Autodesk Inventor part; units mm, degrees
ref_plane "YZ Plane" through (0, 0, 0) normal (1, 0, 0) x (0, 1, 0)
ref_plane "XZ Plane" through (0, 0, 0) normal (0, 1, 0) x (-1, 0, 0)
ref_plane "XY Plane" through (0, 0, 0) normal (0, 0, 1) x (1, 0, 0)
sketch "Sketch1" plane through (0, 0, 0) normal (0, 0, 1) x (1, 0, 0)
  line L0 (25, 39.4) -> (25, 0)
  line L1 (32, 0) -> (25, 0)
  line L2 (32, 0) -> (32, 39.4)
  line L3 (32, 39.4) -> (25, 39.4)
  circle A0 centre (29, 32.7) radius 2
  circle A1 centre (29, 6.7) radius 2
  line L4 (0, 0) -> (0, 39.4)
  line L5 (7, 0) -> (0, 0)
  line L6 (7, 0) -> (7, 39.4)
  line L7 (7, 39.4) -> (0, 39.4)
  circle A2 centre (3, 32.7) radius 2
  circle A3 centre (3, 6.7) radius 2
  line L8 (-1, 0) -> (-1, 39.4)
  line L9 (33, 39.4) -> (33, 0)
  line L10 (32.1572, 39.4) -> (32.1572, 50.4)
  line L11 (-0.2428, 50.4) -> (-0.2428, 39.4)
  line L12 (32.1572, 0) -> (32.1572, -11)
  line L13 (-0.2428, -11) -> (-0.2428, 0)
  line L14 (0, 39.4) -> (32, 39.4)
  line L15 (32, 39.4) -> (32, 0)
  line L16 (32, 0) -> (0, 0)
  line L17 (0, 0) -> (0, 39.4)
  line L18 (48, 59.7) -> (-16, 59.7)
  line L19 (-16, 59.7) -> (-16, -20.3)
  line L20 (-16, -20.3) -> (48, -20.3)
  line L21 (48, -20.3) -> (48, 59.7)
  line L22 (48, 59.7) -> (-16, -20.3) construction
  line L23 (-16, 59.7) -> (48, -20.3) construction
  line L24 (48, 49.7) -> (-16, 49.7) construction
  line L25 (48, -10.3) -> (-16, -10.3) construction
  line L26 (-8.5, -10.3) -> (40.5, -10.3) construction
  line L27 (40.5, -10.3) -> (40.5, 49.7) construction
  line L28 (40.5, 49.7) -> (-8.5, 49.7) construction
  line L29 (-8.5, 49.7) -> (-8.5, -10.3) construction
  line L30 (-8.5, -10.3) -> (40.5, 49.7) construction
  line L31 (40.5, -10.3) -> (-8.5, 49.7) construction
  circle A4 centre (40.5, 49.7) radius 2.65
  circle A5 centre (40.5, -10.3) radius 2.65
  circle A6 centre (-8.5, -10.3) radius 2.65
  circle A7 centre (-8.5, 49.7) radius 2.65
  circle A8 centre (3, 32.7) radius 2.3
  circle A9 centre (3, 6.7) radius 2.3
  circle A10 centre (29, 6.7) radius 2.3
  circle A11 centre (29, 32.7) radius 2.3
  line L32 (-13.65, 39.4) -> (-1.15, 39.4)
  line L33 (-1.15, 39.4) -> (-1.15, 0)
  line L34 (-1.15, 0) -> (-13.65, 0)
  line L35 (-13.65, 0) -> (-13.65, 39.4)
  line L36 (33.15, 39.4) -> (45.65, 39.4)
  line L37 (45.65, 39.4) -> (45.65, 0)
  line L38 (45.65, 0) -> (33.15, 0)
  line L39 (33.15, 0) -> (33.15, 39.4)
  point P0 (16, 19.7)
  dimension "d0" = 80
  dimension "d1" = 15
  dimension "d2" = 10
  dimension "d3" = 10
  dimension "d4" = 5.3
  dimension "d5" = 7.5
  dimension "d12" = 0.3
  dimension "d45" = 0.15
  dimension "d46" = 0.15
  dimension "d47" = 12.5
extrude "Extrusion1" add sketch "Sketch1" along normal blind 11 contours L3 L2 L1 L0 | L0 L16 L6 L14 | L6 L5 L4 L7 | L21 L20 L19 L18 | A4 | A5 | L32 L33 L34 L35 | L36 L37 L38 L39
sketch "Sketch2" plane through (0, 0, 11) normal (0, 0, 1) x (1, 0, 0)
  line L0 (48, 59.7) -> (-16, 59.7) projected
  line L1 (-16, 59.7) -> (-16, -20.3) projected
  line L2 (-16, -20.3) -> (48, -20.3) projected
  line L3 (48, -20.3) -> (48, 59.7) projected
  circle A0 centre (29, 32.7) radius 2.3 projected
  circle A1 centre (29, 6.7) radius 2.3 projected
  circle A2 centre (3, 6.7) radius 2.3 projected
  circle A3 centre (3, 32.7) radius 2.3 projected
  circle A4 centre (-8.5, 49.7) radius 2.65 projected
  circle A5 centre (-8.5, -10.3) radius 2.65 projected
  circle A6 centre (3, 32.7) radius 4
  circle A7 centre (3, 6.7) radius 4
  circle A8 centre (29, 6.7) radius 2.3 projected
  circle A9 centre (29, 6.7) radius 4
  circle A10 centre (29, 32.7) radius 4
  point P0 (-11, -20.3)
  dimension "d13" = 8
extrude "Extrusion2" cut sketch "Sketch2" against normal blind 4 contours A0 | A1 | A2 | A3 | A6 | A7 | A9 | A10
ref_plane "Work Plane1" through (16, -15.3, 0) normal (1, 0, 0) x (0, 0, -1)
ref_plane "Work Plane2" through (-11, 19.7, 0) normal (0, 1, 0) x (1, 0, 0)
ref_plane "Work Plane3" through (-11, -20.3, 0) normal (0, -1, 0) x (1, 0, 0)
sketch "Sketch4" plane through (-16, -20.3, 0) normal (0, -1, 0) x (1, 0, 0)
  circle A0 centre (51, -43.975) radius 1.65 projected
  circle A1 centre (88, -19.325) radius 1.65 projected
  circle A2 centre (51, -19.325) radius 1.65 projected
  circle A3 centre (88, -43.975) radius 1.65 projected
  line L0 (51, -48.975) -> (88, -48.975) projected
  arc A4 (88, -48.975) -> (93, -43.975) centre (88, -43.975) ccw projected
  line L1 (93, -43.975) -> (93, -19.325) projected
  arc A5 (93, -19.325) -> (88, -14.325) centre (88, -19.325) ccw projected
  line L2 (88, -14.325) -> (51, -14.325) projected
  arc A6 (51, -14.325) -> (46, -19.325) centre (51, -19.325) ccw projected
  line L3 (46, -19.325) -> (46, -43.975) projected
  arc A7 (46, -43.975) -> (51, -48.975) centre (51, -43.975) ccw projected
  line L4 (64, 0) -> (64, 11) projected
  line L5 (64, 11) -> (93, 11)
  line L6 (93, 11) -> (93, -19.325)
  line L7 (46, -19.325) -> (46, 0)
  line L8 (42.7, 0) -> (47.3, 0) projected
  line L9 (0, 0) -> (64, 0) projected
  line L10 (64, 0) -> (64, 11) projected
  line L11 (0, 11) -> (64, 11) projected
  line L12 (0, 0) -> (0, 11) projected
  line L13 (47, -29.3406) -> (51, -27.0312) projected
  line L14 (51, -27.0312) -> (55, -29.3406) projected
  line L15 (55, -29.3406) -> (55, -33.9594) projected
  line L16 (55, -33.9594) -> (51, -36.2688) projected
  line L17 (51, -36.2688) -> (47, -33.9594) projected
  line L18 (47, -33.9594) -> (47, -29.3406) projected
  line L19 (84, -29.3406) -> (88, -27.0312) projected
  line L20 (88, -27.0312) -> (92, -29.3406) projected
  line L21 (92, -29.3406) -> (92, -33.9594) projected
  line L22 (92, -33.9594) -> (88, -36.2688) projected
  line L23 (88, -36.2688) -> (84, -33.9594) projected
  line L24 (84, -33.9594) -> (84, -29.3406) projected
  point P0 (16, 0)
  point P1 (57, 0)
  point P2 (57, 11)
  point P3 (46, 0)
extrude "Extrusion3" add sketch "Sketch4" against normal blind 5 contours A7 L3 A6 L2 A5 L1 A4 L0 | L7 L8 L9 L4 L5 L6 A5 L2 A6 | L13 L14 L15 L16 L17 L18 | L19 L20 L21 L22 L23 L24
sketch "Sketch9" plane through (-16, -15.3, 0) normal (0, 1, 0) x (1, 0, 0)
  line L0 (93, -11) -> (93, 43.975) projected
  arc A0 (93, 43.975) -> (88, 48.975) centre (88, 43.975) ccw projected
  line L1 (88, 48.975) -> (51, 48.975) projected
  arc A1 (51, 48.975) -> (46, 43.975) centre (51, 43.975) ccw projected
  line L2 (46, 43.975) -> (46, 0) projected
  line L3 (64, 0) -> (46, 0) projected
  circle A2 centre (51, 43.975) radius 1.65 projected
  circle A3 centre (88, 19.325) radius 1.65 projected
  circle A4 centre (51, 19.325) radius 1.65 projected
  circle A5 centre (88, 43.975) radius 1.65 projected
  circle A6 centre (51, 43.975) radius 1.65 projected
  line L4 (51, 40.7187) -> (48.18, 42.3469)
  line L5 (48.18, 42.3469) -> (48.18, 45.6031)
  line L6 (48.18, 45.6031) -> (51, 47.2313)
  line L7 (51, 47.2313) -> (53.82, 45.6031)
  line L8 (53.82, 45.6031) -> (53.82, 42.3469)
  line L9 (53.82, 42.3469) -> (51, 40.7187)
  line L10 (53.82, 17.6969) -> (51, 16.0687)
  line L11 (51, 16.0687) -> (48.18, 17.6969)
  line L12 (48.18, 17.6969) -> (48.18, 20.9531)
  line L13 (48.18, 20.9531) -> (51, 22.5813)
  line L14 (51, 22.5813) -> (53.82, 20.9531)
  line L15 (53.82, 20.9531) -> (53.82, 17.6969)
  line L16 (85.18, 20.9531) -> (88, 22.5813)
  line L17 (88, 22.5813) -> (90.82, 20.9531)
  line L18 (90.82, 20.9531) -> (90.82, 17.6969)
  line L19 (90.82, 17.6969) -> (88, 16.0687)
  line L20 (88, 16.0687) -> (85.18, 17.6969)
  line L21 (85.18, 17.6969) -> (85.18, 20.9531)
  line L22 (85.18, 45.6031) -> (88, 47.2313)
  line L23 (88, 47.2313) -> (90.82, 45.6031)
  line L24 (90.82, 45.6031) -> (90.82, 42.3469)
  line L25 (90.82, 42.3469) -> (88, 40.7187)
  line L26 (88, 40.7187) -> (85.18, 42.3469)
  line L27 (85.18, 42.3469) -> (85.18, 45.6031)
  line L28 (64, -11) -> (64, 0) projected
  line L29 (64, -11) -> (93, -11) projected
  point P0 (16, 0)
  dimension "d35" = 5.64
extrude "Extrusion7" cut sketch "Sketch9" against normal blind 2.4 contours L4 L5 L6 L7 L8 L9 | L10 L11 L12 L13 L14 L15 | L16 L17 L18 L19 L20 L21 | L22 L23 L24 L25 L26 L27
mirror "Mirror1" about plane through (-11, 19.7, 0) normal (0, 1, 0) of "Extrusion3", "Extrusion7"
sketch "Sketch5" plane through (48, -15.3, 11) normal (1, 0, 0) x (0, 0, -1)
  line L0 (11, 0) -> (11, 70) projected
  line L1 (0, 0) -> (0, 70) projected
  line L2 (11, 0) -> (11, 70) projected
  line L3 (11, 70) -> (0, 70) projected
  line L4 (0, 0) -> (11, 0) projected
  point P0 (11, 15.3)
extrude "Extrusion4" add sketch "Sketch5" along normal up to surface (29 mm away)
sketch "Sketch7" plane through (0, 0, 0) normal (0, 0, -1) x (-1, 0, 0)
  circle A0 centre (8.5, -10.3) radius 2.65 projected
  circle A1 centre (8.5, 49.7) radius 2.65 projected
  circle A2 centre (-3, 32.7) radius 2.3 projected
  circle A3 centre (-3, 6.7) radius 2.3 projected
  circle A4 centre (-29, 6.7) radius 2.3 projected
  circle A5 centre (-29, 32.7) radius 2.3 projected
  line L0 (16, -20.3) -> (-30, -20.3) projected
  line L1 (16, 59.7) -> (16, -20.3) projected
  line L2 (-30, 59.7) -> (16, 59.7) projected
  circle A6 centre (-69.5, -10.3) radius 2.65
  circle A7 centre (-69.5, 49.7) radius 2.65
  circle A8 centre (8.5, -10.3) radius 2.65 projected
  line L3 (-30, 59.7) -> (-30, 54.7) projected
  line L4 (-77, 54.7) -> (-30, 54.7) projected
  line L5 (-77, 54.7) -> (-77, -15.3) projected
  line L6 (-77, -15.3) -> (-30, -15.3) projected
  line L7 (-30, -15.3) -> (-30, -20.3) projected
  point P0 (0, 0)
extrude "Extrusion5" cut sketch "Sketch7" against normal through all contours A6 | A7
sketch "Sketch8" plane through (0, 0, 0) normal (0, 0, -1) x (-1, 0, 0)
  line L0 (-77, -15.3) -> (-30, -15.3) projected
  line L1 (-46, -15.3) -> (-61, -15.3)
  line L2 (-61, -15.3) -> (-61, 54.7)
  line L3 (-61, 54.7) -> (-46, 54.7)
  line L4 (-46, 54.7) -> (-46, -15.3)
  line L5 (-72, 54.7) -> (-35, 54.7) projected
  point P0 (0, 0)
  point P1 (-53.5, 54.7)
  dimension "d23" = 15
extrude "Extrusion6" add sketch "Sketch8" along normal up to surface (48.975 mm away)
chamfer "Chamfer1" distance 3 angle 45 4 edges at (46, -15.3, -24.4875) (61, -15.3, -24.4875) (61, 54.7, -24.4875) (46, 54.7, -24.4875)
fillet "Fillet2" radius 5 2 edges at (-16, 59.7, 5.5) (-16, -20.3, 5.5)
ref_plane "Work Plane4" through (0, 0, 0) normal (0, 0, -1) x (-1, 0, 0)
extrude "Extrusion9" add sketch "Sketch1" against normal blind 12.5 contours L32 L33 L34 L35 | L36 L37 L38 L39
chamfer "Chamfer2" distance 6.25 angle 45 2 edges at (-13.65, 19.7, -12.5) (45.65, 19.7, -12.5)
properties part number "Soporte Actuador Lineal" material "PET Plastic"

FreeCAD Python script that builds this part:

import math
import FreeCAD as App
import Part
import Sketcher

V = App.Vector
Q = App.Units.Quantity


def edges_at(feature, points):
    """Names of the edges that pass closest to the given points."""
    edges = feature.Shape.Edges
    near = lambda p: min(range(len(edges)), key=lambda i: edges[i].distToShape(Part.Vertex(*p))[0])
    return sorted({f"Edge{near(p) + 1}" for p in points})


def add_polygon(sketch, points):
    """Adds a closed chain of lines whose ends are joined by coincident constraints."""
    first, n = sketch.GeometryCount, len(points)
    for a, b in zip(points, points[1:] + points[:1]):
        sketch.addGeometry(Part.LineSegment(App.Vector(*a, 0), App.Vector(*b, 0)), False)
    for i in range(n):
        sketch.addConstraint(Sketcher.Constraint("Coincident", first + i, 2, first + (i + 1) % n, 1))

doc = App.newDocument("Part")
body = doc.addObject("PartDesign::Body", "Body")

# Sketch on XY plane
sketch1 = body.newObject("Sketcher::SketchObject", "Sketch")
sketch1.AttachmentSupport = (doc.getObject("XY_Plane"), [""])
sketch1.MapMode = "FlatFace"
add_polygon(sketch1, [(48, -20.3), (48, 59.7), (-16, 59.7), (-16, -20.3)])  # lines 0-3
sketch1.addGeometry(Part.Circle(V(29, 6.7, 0), V(0, 0, 1), 2.3), False)  # 4
sketch1.addGeometry(Part.Circle(V(29, 32.7, 0), V(0, 0, 1), 2.3), False)  # 5
sketch1.addGeometry(Part.Circle(V(-8.5, -10.3, 0), V(0, 0, 1), 2.6), False)  # 6
sketch1.addGeometry(Part.Circle(V(-8.5, 49.7, 0), V(0, 0, 1), 2.6), False)  # 7
sketch1.addGeometry(Part.Circle(V(3, 6.7, 0), V(0, 0, 1), 2.3), False)  # 8
sketch1.addGeometry(Part.Circle(V(3, 32.7, 0), V(0, 0, 1), 2.3), False)  # 9
sketch1.addConstraint([
    Sketcher.Constraint("Vertical", 0),
    Sketcher.Constraint("Horizontal", 1),
    Sketcher.Constraint("Vertical", 2),
    Sketcher.Constraint("Horizontal", 3),
    Sketcher.Constraint("Equal", 4, 5),
    Sketcher.Constraint("Equal", 6, 7),
    Sketcher.Constraint("Equal", 5, 8),
    Sketcher.Constraint("Equal", 8, 9),
    Sketcher.Constraint("Horizontal", 4, 3, 8, 3),
    Sketcher.Constraint("Horizontal", 5, 3, 9, 3),
    Sketcher.Constraint("Vertical", 4, 3, 5, 3),
    Sketcher.Constraint("Vertical", 6, 3, 7, 3),
    Sketcher.Constraint("Vertical", 8, 3, 9, 3),
    Sketcher.Constraint("Diameter", 6, Q("5.3 mm")),
    Sketcher.Constraint("DistanceY", 0, 1, 0, 2, Q("80 mm")),
    Sketcher.Constraint("DistanceY", 7, 3, 0, 2, Q("10 mm")),
    Sketcher.Constraint("DistanceY", 2, 2, 6, 3, Q("10 mm")),
    Sketcher.Constraint("Diameter", 4, Q("4.6 mm")),
    Sketcher.Constraint("DistanceX", 1, 2, 7, 3, Q("7.5 mm")),
    Sketcher.Constraint("DistanceX", 1, 2, 1, 1, Q("64 mm")),
    Sketcher.Constraint("DistanceX", -1, 1, 4, 3, Q("29 mm")),
    Sketcher.Constraint("DistanceX", -1, 1, 8, 3, Q("3 mm")),
    Sketcher.Constraint("DistanceX", -1, 1, 0, 2, Q("48 mm")),
    Sketcher.Constraint("DistanceY", 4, 3, 5, 3, Q("26 mm")),
    Sketcher.Constraint("DistanceY", 6, 3, 4, 3, Q("17 mm")),
    Sketcher.Constraint("DistanceY", -1, 1, 4, 3, Q("6.7 mm")),
])
pad1 = body.newObject("PartDesign::Pad", "Pad")
pad1.Profile = sketch1
pad1.Length = 11

# Sketch on XY plane
sketch2 = body.newObject("Sketcher::SketchObject", "Sketch001")
sketch2.AttachmentSupport = (doc.getObject("XY_Plane"), [""])
sketch2.MapMode = "FlatFace"
sketch2.AttachmentOffset = App.Placement(V(0, 0, 11), App.Rotation())
sketch2.addGeometry([
    Part.Circle(V(29, 32.7, 0), V(0, 0, 1), 4),
    Part.Circle(V(29, 6.7, 0), V(0, 0, 1), 4),
    Part.Circle(V(3, 6.7, 0), V(0, 0, 1), 4),
    Part.Circle(V(3, 32.7, 0), V(0, 0, 1), 4),
], False)
sketch2.addConstraint([
    Sketcher.Constraint("Equal", 0, 1),
    Sketcher.Constraint("Equal", 1, 2),
    Sketcher.Constraint("Equal", 2, 3),
    Sketcher.Constraint("Horizontal", 1, 3, 2, 3),
    Sketcher.Constraint("Horizontal", 0, 3, 3, 3),
    Sketcher.Constraint("Vertical", 0, 3, 1, 3),
    Sketcher.Constraint("Vertical", 2, 3, 3, 3),
    Sketcher.Constraint("Diameter", 0, Q("8 mm")),
    Sketcher.Constraint("DistanceX", -1, 1, 0, 3, Q("29 mm")),
    Sketcher.Constraint("DistanceX", -1, 1, 2, 3, Q("3 mm")),
    Sketcher.Constraint("DistanceY", 1, 3, 0, 3, Q("26 mm")),
    Sketcher.Constraint("DistanceY", -1, 1, 0, 3, Q("32.7 mm")),
])
pocket1 = body.newObject("PartDesign::Pocket", "Pocket")
pocket1.Profile = sketch2
pocket1.Length = 4

# Sketch on XZ plane
sketch3 = body.newObject("Sketcher::SketchObject", "Sketch002")
sketch3.AttachmentSupport = (doc.getObject("XZ_Plane"), [""])
sketch3.MapMode = "FlatFace"
sketch3.AttachmentOffset = App.Placement(V(0, 0, 20.3), App.Rotation())
sketch3.addGeometry([
    Part.ArcOfCircle(Part.Circle(V(35, -44, 0), V(0, 0, 1), 5), math.radians(180), math.radians(270)),  # 0
    Part.LineSegment(V(35, -49, 0), V(72, -49, 0)),  # 1
    Part.ArcOfCircle(Part.Circle(V(72, -44, 0), V(0, 0, 1), 5), math.radians(-90), math.radians(0)),  # 2
    Part.LineSegment(V(77, -44, 0), V(77, 11, 0)),  # 3
    Part.LineSegment(V(77, 11, 0), V(48, 11, 0)),  # 4
    Part.LineSegment(V(48, 11, 0), V(48, 0, 0)),  # 5
    Part.LineSegment(V(48, 0, 0), V(30, 0, 0)),  # 6
    Part.LineSegment(V(30, 0, 0), V(30, -44, 0)),  # 7
    Part.Circle(V(35, -44, 0), V(0, 0, 1), 1.6),  # 8
    Part.Circle(V(72, -44, 0), V(0, 0, 1), 1.6),  # 9
    Part.Circle(V(35, -19.3, 0), V(0, 0, 1), 1.6),  # 10
    Part.Circle(V(72, -19.3, 0), V(0, 0, 1), 1.6),  # 11
], False)
sketch3.addConstraint([
    Sketcher.Constraint("Tangent", 0, 2, 1, 1),
    Sketcher.Constraint("Tangent", 1, 2, 2, 1),
    Sketcher.Constraint("Tangent", 2, 2, 3, 1),
    Sketcher.Constraint("Coincident", 3, 2, 4, 1),
    Sketcher.Constraint("Coincident", 4, 2, 5, 1),
    Sketcher.Constraint("Coincident", 5, 2, 6, 1),
    Sketcher.Constraint("Coincident", 6, 2, 7, 1),
    Sketcher.Constraint("Tangent", 7, 2, 0, 1),
    Sketcher.Constraint("Horizontal", 1),
    Sketcher.Constraint("Vertical", 3),
    Sketcher.Constraint("Horizontal", 4),
    Sketcher.Constraint("Vertical", 5),
    Sketcher.Constraint("Horizontal", 6),
    Sketcher.Constraint("Vertical", 7),
    Sketcher.Constraint("Coincident", 8, 3, 0, 3),
    Sketcher.Constraint("Coincident", 9, 3, 2, 3),
    Sketcher.Constraint("Equal", 0, 2),
    Sketcher.Constraint("Equal", 8, 9),
    Sketcher.Constraint("Equal", 9, 10),
    Sketcher.Constraint("Equal", 10, 11),
    Sketcher.Constraint("PointOnObject", 5, 2, -1),
    Sketcher.Constraint("Horizontal", 10, 3, 11, 3),
    Sketcher.Constraint("Vertical", 8, 3, 10, 3),
    Sketcher.Constraint("Vertical", 9, 3, 11, 3),
    Sketcher.Constraint("Radius", 0, Q("5 mm")),
    Sketcher.Constraint("Diameter", 8, Q("3.3 mm")),
    Sketcher.Constraint("DistanceX", 1, 1, 1, 2, Q("37 mm")),
    Sketcher.Constraint("DistanceX", 4, 2, 4, 1, Q("29 mm")),
    Sketcher.Constraint("DistanceY", 5, 2, 5, 1, Q("11 mm")),
    Sketcher.Constraint("DistanceX", -1, 1, 0, 3, Q("35 mm")),
    Sketcher.Constraint("DistanceY", 3, 1, 3, 2, Q("54.975 mm")),
    Sketcher.Constraint("DistanceY", 0, 3, 10, 3, Q("24.65 mm")),
])
pad2 = body.newObject("PartDesign::Pad", "Pad001")
pad2.Profile = sketch3
pad2.Length = 5
pad2.Reversed = True

# Sketch on XZ plane
sketch4 = body.newObject("Sketcher::SketchObject", "Sketch003")
sketch4.AttachmentSupport = (doc.getObject("XZ_Plane"), [""])
sketch4.MapMode = "FlatFace"
sketch4.AttachmentOffset = App.Placement(V(0, 0, 15.3), App.Rotation())
add_polygon(sketch4, [(32.2, -42.3), (35, -40.7), (37.8, -42.3), (37.8, -45.6), (35, -47.2), (32.2, -45.6)])  # lines 0-5
sketch4.addGeometry(Part.Circle(V(35, -44, 0), V(0, 0, 1), 1.6), False)  # 6
add_polygon(sketch4, [(35, -16.1), (37.8, -17.7), (37.8, -21), (35, -22.6), (32.2, -21), (32.2, -17.7)])  # lines 7-12
sketch4.addGeometry(Part.Circle(V(35, -19.3, 0), V(0, 0, 1), 1.6), False)  # 13
add_polygon(sketch4, [(72, -22.6), (69.2, -21), (69.2, -17.7), (72, -16.1), (74.8, -17.7), (74.8, -21)])  # lines 14-19
sketch4.addGeometry(Part.Circle(V(72, -19.3, 0), V(0, 0, 1), 1.6), False)  # 20
add_polygon(sketch4, [(72, -47.2), (69.2, -45.6), (69.2, -42.3), (72, -40.7), (74.8, -42.3), (74.8, -45.6)])  # lines 21-26
sketch4.addGeometry(Part.Circle(V(72, -44, 0), V(0, 0, 1), 1.6), False)  # 27
sketch4.addConstraint([
    Sketcher.Constraint("Vertical", 2),
    Sketcher.Constraint("Vertical", 5),
    Sketcher.Constraint("Vertical", 8),
    Sketcher.Constraint("Vertical", 11),
    Sketcher.Constraint("Vertical", 15),
    Sketcher.Constraint("Vertical", 18),
    Sketcher.Constraint("Vertical", 22),
    Sketcher.Constraint("Vertical", 25),
    Sketcher.Constraint("Equal", 6, 13),
    Sketcher.Constraint("Equal", 13, 20),
    Sketcher.Constraint("Equal", 20, 27),
    Sketcher.Constraint("Parallel", 0, 3),
    Sketcher.Constraint("Parallel", 1, 4),
    Sketcher.Constraint("Parallel", 4, 7),
    Sketcher.Constraint("Parallel", 3, 9),
    Sketcher.Constraint("Parallel", 7, 10),
    Sketcher.Constraint("Parallel", 9, 12),
    Sketcher.Constraint("Parallel", 10, 14),
    Sketcher.Constraint("Parallel", 12, 16),
    Sketcher.Constraint("Parallel", 14, 17),
    Sketcher.Constraint("Parallel", 16, 19),
    Sketcher.Constraint("Parallel", 17, 21),
    Sketcher.Constraint("Parallel", 19, 23),
    Sketcher.Constraint("Parallel", 21, 24),
    Sketcher.Constraint("Parallel", 23, 26),
    Sketcher.Constraint("Horizontal", 13, 3, 20, 3),
    Sketcher.Constraint("Horizontal", 6, 3, 27, 3),
    Sketcher.Constraint("Horizontal", 2, 2, 4, 2),
    Sketcher.Constraint("Horizontal", 1, 2, 5, 2),
    Sketcher.Constraint("Horizontal", 8, 2, 10, 2),
    Sketcher.Constraint("Horizontal", 7, 2, 11, 2),
    Sketcher.Constraint("Horizontal", 10, 2, 14, 2),
    Sketcher.Constraint("Horizontal", 11, 2, 15, 2),
    Sketcher.Constraint("Horizontal", 12, 2, 16, 2),
    Sketcher.Constraint("Horizontal", 15, 2, 17, 2),
    Sketcher.Constraint("Horizontal", 14, 2, 18, 2),
    Sketcher.Constraint("Horizontal", 4, 2, 21, 2),
    Sketcher.Constraint("Horizontal", 5, 2, 22, 2),
    Sketcher.Constraint("Horizontal", 0, 2, 23, 2),
    Sketcher.Constraint("Horizontal", 22, 2, 24, 2),
    Sketcher.Constraint("Horizontal", 21, 2, 25, 2),
    Sketcher.Constraint("Vertical", 6, 3, 13, 3),
    Sketcher.Constraint("Vertical", 20, 3, 27, 3),
    Sketcher.Constraint("Vertical", 13, 3, 0, 2),
    Sketcher.Constraint("Vertical", 0, 2, 3, 2),
    Sketcher.Constraint("Vertical", 2, 2, 7, 2),
    Sketcher.Constraint("Vertical", 3, 2, 9, 2),
    Sketcher.Constraint("Vertical", 27, 3, 16, 2),
    Sketcher.Constraint("Vertical", 15, 2, 21, 2),
    Sketcher.Constraint("Equal", 5, 8),
    Sketcher.Constraint("Diameter", 6, Q("3.3 mm")),
    Sketcher.Constraint("Angle", 0, Q("30.001 deg")),
    Sketcher.Constraint("DistanceX", 4, 2, 2, 2, Q("5.64 mm")),
    Sketcher.Constraint("DistanceX", -1, 1, 6, 3, Q("35 mm")),
    Sketcher.Constraint("DistanceX", -1, 1, 20, 3, Q("72 mm")),
    Sketcher.Constraint("DistanceY", 6, 3, 13, 3, Q("24.65 mm")),
    Sketcher.Constraint("DistanceY", 1, 2, 7, 2, Q("24.65 mm")),
    Sketcher.Constraint("DistanceY", 2, 2, 2, 1, Q("3.2562 mm")),
    Sketcher.Constraint("DistanceY", 6, 3, -1, 1, Q("43.975 mm")),
    Sketcher.Constraint("DistanceY", 1, 2, -1, 1, Q("42.347 mm")),
])
pocket2 = body.newObject("PartDesign::Pocket", "Pocket001")
pocket2.Profile = sketch4
pocket2.Length = 2.4
pocket2.Reversed = True
doc.recompute()

datumplane = body.newObject("PartDesign::Plane", "DatumPlane")
datumplane.AttachmentSupport = (doc.getObject("XZ_Plane"), [""])
datumplane.MapMode = "FlatFace"
datumplane.AttachmentOffset = App.Placement(V(0, 0, -19.7), App.Rotation())
mirrored = body.newObject("PartDesign::Mirrored", "Mirrored")
mirrored.Originals = [pad2, pocket2]
mirrored.MirrorPlane = (datumplane, [""])
body.Tip = mirrored

# Sketch on YZ plane
sketch5 = body.newObject("Sketcher::SketchObject", "Sketch004")
sketch5.AttachmentSupport = (doc.getObject("YZ_Plane"), [""])
sketch5.MapMode = "FlatFace"
sketch5.AttachmentOffset = App.Placement(V(0, 0, 48), App.Rotation())
add_polygon(sketch5, [(-15, 11), (-15, 0), (55, 0), (55, 11)])  # lines 0-3
sketch5.addConstraint([
    Sketcher.Constraint("Vertical", 0),
    Sketcher.Constraint("Horizontal", 1),
    Sketcher.Constraint("Vertical", 2),
    Sketcher.Constraint("Horizontal", 3),
    Sketcher.Constraint("PointOnObject", 0, 2, -1),
    Sketcher.Constraint("DistanceX", 1, 1, 1, 2, Q("70 mm")),
    Sketcher.Constraint("DistanceY", 0, 2, 0, 1, Q("11 mm")),
    Sketcher.Constraint("DistanceX", 0, 2, -1, 1, Q("15.3 mm")),
])
pad3 = body.newObject("PartDesign::Pad", "Pad002")
pad3.Profile = sketch5
pad3.Length = 29

# Sketch on XY plane
sketch6 = body.newObject("Sketcher::SketchObject", "Sketch005")
sketch6.AttachmentSupport = (doc.getObject("XY_Plane"), [""])
sketch6.MapMode = "FlatFace"
sketch6.addGeometry([
    Part.Circle(V(69.5, -10.3, 0), V(0, 0, 1), 2.6),
    Part.Circle(V(69.5, 49.7, 0), V(0, 0, 1), 2.6),
], False)
sketch6.addConstraint([
    Sketcher.Constraint("Equal", 0, 1),
    Sketcher.Constraint("Vertical", 0, 3, 1, 3),
    Sketcher.Constraint("Diameter", 0, Q("5.3 mm")),
    Sketcher.Constraint("DistanceY", 0, 3, 1, 3, Q("60 mm")),
    Sketcher.Constraint("DistanceX", -1, 1, 0, 3, Q("69.5 mm")),
    Sketcher.Constraint("DistanceY", 0, 3, -1, 1, Q("10.3 mm")),
])
pocket3 = body.newObject("PartDesign::Pocket", "Pocket002")
pocket3.Profile = sketch6
pocket3.Type = "ThroughAll"
pocket3.Reversed = True

# Sketch on XY plane
sketch7 = body.newObject("Sketcher::SketchObject", "Sketch006")
sketch7.AttachmentSupport = (doc.getObject("XY_Plane"), [""])
sketch7.MapMode = "FlatFace"
add_polygon(sketch7, [(61, 55), (61, -15), (46, -15), (46, 55)])  # lines 0-3
sketch7.addConstraint([
    Sketcher.Constraint("Vertical", 0),
    Sketcher.Constraint("Horizontal", 1),
    Sketcher.Constraint("Vertical", 2),
    Sketcher.Constraint("Horizontal", 3),
    Sketcher.Constraint("DistanceX", 1, 2, 1, 1, Q("15 mm")),
    Sketcher.Constraint("DistanceY", 0, 2, 0, 1, Q("70 mm")),
    Sketcher.Constraint("DistanceX", -1, 1, 0, 2, Q("61 mm")),
    Sketcher.Constraint("DistanceY", 0, 2, -1, 1, Q("15.3 mm")),
])
pad4 = body.newObject("PartDesign::Pad", "Pad003")
pad4.Profile = sketch7
pad4.Length = 48.975
pad4.Reversed = True
doc.recompute()

chamfer = body.newObject("PartDesign::Chamfer", "Chamfer")
chamfer.Base = (pad4, edges_at(pad4, [
    (46, -15.3, -24.488),
    (61, -15.3, -24.488),
    (61, 54.7, -24.488),
    (46, 54.7, -24.488),
]))
chamfer.Size = 3
doc.recompute()

fillet = body.newObject("PartDesign::Fillet", "Fillet")
fillet.Base = (chamfer, edges_at(chamfer, [(-16, 59.7, 5.5), (-16, -20.3, 5.5)]))
fillet.Radius = 5

# Sketch on XY plane
sketch8 = body.newObject("Sketcher::SketchObject", "Sketch007")
sketch8.AttachmentSupport = (doc.getObject("XY_Plane"), [""])
sketch8.MapMode = "FlatFace"
add_polygon(sketch8, [(-1, 39), (-14, 39), (-14, 0), (-1, 0)])  # lines 0-3
add_polygon(sketch8, [(46, 39), (33, 39), (33, 0), (46, 0)])  # lines 4-7
sketch8.addConstraint([
    Sketcher.Constraint("Horizontal", 0),
    Sketcher.Constraint("Vertical", 1),
    Sketcher.Constraint("Horizontal", 2),
    Sketcher.Constraint("Vertical", 3),
    Sketcher.Constraint("Horizontal", 4),
    Sketcher.Constraint("Vertical", 5),
    Sketcher.Constraint("Horizontal", 6),
    Sketcher.Constraint("Vertical", 7),
    Sketcher.Constraint("PointOnObject", 1, 2, -1),
    Sketcher.Constraint("PointOnObject", 5, 2, -1),
    Sketcher.Constraint("Horizontal", 3, 2, 4, 2),
    Sketcher.Constraint("Equal", 2, 4),
    Sketcher.Constraint("DistanceX", 0, 2, 0, 1, Q("12.5 mm")),
    Sketcher.Constraint("DistanceY", 1, 2, 1, 1, Q("39.4 mm")),
    Sketcher.Constraint("DistanceX", 3, 2, 4, 2, Q("34.3 mm")),
    Sketcher.Constraint("DistanceX", 0, 2, -1, 1, Q("13.65 mm")),
])
pad5 = body.newObject("PartDesign::Pad", "Pad004")
pad5.Profile = sketch8
pad5.Length = 12.5
pad5.Reversed = True
doc.recompute()

chamfer2 = body.newObject("PartDesign::Chamfer", "Chamfer001")
chamfer2.Base = (pad5, edges_at(pad5, [(-13.65, 19.7, -12.5), (45.65, 19.7, -12.5)]))
chamfer2.Size = 6.25

doc.recompute()
